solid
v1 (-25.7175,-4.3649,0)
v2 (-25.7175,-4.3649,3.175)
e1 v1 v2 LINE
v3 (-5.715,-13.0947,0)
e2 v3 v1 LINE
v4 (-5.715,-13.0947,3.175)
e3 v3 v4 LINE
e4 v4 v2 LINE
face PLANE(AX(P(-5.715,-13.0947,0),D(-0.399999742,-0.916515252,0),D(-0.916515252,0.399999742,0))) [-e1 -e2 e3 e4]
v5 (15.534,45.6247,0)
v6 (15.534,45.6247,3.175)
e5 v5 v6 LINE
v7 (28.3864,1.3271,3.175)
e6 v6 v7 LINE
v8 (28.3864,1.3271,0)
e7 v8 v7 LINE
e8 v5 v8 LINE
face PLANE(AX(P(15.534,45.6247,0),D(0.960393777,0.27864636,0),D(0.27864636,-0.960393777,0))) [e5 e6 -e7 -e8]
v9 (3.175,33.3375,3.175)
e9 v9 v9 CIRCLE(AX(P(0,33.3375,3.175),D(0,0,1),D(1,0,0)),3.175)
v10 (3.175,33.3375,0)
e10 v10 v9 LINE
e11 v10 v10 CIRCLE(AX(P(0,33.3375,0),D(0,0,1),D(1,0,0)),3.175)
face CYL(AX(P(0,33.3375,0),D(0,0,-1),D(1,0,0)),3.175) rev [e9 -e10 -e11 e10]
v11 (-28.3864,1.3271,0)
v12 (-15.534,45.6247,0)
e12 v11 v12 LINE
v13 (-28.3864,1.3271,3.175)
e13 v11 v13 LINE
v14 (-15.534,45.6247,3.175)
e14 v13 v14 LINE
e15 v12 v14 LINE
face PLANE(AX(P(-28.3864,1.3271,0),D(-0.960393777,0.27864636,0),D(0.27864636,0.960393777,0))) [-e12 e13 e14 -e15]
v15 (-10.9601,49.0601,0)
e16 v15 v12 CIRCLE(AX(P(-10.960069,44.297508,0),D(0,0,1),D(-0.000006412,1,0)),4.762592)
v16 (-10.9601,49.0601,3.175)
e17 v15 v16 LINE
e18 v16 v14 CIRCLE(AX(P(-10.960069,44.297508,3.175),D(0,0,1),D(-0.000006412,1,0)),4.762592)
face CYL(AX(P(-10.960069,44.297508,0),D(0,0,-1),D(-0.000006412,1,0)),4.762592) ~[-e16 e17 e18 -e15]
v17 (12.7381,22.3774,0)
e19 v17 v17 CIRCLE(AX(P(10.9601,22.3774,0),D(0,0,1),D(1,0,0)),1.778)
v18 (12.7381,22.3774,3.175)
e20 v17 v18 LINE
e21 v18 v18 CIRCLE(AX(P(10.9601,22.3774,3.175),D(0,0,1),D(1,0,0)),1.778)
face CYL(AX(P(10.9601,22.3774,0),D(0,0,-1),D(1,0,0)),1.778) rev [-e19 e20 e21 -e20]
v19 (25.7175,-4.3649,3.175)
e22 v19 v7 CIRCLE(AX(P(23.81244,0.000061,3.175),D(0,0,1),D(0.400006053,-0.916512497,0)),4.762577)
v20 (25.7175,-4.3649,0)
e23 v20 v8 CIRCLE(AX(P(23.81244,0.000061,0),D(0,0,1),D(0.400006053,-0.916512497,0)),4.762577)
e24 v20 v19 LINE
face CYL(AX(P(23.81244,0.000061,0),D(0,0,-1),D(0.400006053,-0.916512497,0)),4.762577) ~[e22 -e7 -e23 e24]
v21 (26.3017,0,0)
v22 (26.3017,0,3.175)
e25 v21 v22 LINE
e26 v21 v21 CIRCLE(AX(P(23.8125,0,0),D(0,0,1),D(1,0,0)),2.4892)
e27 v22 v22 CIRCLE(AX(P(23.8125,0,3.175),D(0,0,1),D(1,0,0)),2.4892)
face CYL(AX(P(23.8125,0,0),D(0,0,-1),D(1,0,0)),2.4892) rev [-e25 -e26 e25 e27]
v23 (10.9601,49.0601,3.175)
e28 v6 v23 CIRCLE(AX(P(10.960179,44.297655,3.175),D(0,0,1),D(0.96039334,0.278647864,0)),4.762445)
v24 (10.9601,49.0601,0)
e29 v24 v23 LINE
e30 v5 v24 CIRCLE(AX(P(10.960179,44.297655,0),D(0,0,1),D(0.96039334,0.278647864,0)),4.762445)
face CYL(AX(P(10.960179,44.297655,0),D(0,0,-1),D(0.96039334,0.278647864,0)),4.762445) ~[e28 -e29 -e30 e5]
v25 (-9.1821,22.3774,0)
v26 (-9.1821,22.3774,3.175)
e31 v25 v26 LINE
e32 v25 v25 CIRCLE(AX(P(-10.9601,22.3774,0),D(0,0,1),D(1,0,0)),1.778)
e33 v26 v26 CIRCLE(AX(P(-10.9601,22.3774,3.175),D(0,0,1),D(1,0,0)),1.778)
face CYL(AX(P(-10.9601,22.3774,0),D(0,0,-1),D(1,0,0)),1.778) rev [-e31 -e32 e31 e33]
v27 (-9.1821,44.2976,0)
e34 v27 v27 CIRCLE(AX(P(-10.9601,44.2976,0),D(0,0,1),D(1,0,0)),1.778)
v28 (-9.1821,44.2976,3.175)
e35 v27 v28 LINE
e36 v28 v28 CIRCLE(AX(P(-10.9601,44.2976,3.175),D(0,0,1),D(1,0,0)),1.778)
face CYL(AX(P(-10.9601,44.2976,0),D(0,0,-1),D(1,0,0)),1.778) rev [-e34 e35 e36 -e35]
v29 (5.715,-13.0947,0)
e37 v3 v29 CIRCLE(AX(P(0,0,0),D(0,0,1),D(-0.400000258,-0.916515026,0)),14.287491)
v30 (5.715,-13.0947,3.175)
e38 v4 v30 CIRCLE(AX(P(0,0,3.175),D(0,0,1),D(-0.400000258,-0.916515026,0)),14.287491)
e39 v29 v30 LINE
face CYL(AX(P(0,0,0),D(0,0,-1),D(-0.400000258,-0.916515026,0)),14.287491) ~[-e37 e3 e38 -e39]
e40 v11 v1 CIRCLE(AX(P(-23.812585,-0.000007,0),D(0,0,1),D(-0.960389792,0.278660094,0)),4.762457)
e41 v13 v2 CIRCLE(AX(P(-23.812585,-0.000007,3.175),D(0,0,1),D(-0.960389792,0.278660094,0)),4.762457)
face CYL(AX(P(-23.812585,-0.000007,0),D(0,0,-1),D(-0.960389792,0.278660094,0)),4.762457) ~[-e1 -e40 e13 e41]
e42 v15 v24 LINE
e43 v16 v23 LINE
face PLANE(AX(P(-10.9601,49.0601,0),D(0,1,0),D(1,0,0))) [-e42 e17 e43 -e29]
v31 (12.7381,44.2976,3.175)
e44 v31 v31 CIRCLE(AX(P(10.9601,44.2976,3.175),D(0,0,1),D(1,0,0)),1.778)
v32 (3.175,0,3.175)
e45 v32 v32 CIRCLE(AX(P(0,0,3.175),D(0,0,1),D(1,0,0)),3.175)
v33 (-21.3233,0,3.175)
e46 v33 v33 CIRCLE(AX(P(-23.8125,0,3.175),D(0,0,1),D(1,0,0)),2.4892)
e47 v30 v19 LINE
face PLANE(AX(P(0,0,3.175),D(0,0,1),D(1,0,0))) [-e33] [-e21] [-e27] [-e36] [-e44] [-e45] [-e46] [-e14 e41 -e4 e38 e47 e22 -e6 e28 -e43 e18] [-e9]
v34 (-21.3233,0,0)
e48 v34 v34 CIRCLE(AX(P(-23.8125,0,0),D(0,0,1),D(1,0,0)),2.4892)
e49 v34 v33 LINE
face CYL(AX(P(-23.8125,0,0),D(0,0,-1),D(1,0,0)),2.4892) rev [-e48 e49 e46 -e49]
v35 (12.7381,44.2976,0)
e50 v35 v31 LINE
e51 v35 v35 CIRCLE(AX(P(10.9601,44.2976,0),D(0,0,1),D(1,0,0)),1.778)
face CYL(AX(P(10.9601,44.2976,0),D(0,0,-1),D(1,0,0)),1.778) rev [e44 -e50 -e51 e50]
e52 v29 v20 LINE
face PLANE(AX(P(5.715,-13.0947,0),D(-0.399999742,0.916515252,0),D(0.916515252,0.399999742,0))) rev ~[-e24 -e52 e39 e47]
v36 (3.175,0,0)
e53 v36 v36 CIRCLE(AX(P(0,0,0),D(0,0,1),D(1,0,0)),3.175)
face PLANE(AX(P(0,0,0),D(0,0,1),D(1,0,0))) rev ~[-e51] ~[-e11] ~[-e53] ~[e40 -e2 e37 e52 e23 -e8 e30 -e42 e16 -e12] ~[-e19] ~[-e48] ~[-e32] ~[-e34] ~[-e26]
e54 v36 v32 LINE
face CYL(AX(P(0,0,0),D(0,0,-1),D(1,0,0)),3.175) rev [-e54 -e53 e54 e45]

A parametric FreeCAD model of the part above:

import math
import FreeCAD as App
import Part
import Sketcher
from FreeCAD import Vector
Q = App.Units.Quantity

doc = App.newDocument("Part")
body = doc.addObject("PartDesign::Body", "Body")

# Sketch on XY plane
sketch1 = body.newObject("Sketcher::SketchObject", "Sketch")
sketch1.AttachmentSupport = (doc.getObject("XY_Plane"), [""])
sketch1.MapMode = "FlatFace"
sketch1.addGeometry(Part.LineSegment(Vector(-25.7175, -4.3649, 0), Vector(-5.715, -13.0947, 0)), False)
sketch1.addGeometry(Part.ArcOfCircle(Part.Circle(Vector(0, 0, 0), Vector(0, 0, 1), 14.287491), math.radians(-113.578195), math.radians(-66.421805)), False)
sketch1.addGeometry(Part.LineSegment(Vector(5.715, -13.0947, 0), Vector(25.7175, -4.3649, 0)), False)
sketch1.addGeometry(Part.ArcOfCircle(Part.Circle(Vector(23.8125, 0, 0), Vector(0, 0, 1), 4.762497), math.radians(-66.421805), math.radians(16.179889)), False)
sketch1.addGeometry(Part.LineSegment(Vector(28.3864, 1.3271, 0), Vector(15.534, 45.6247, 0)), False)
sketch1.addGeometry(Part.ArcOfCircle(Part.Circle(Vector(10.9601, 44.2976, 0), Vector(0, 0, 1), 4.762537), math.radians(16.179889), math.radians(90)), False)
sketch1.addGeometry(Part.LineSegment(Vector(10.9601, 49.0601, 0), Vector(-10.9601, 49.0601, 0)), False)
sketch1.addGeometry(Part.ArcOfCircle(Part.Circle(Vector(-10.9601, 44.2976, 0), Vector(0, 0, 1), 4.7625), math.radians(90), math.radians(163.820111)), False)
sketch1.addGeometry(Part.LineSegment(Vector(-15.534, 45.6247, 0), Vector(-28.3864, 1.3271, 0)), False)
sketch1.addGeometry(Part.ArcOfCircle(Part.Circle(Vector(-23.8125, 0, 0), Vector(0, 0, 1), 4.762537), math.radians(163.820111), math.radians(246.421805)), False)
sketch1.addGeometry(Part.Circle(Vector(-23.8125, 0, 0), Vector(0, 0, 1), 2.4892), False)
sketch1.addGeometry(Part.Circle(Vector(0, 0, 0), Vector(0, 0, 1), 3.175), False)
sketch1.addGeometry(Part.Circle(Vector(23.8125, 0, 0), Vector(0, 0, 1), 2.4892), False)
sketch1.addGeometry(Part.Circle(Vector(-10.9601, 22.3774, 0), Vector(0, 0, 1), 1.778), False)
sketch1.addGeometry(Part.Circle(Vector(-10.9601, 44.2976, 0), Vector(0, 0, 1), 1.778), False)
sketch1.addGeometry(Part.Circle(Vector(10.9601, 22.3774, 0), Vector(0, 0, 1), 1.778), False)
sketch1.addGeometry(Part.Circle(Vector(0, 33.3375, 0), Vector(0, 0, 1), 3.175), False)
sketch1.addGeometry(Part.Circle(Vector(10.9601, 44.2976, 0), Vector(0, 0, 1), 1.778), False)
sketch1.addConstraint(Sketcher.Constraint("Tangent", 0, 2, 1, 1))
sketch1.addConstraint(Sketcher.Constraint("Tangent", 1, 2, 2, 1))
sketch1.addConstraint(Sketcher.Constraint("Tangent", 2, 2, 3, 1))
sketch1.addConstraint(Sketcher.Constraint("Tangent", 3, 2, 4, 1))
sketch1.addConstraint(Sketcher.Constraint("Tangent", 4, 2, 5, 1))
sketch1.addConstraint(Sketcher.Constraint("Tangent", 5, 2, 6, 1))
sketch1.addConstraint(Sketcher.Constraint("Tangent", 6, 2, 7, 1))
sketch1.addConstraint(Sketcher.Constraint("Tangent", 7, 2, 8, 1))
sketch1.addConstraint(Sketcher.Constraint("Tangent", 8, 2, 9, 1))
sketch1.addConstraint(Sketcher.Constraint("Tangent", 9, 2, 0, 1))
sketch1.addConstraint(Sketcher.Constraint("Horizontal", 6))
sketch1.addConstraint(Sketcher.Constraint("Coincident", 1, 3, -1, 1))
sketch1.addConstraint(Sketcher.Constraint("Coincident", 11, 3, -1, 1))
sketch1.addConstraint(Sketcher.Constraint("Coincident", 10, 3, 9, 3))
sketch1.addConstraint(Sketcher.Constraint("Coincident", 12, 3, 3, 3))
sketch1.addConstraint(Sketcher.Constraint("Coincident", 14, 3, 7, 3))
sketch1.addConstraint(Sketcher.Constraint("Coincident", 17, 3, 5, 3))
sketch1.addConstraint(Sketcher.Constraint("Equal", 3, 5))
sketch1.addConstraint(Sketcher.Constraint("Equal", 5, 7))
sketch1.addConstraint(Sketcher.Constraint("Equal", 7, 9))
sketch1.addConstraint(Sketcher.Constraint("Equal", 10, 12))
sketch1.addConstraint(Sketcher.Constraint("Equal", 13, 14))
sketch1.addConstraint(Sketcher.Constraint("Equal", 14, 15))
sketch1.addConstraint(Sketcher.Constraint("Equal", 11, 16))
sketch1.addConstraint(Sketcher.Constraint("Equal", 15, 17))
sketch1.addConstraint(Sketcher.Constraint("Symmetric", 3, 3, 9, 3, -1, 1))
sketch1.addConstraint(Sketcher.Constraint("Symmetric", 13, 3, 15, 3, -2))
sketch1.addConstraint(Sketcher.Constraint("Symmetric", 4, 2, 7, 2, -2))
sketch1.addConstraint(Sketcher.Constraint("PointOnObject", 16, 3, -2))
sketch1.addConstraint(Sketcher.Constraint("Vertical", 7, 3, 13, 3))
sketch1.addConstraint(Sketcher.Constraint("Diameter", 11, Q("0.25 in")))
sketch1.addConstraint(Sketcher.Constraint("Diameter", 13, Q("0.14 in")))
sketch1.addConstraint(Sketcher.Constraint("Diameter", 10, Q("0.196 in")))
sketch1.addConstraint(Sketcher.Constraint("Radius", 1, Q("0.5625 in")))
sketch1.addConstraint(Sketcher.Constraint("Radius", 3, Q("0.1875 in")))
sketch1.addConstraint(Sketcher.Constraint("DistanceX", 6, 2, 6, 1, Q("0.863 in")))
sketch1.addConstraint(Sketcher.Constraint("DistanceY", -1, 1, 16, 3, Q("1.3125 in")))
sketch1.addConstraint(Sketcher.Constraint("DistanceX", 9, 3, 3, 3, Q("1.875 in")))
sketch1.addConstraint(Sketcher.Constraint("DistanceY", 13, 3, 7, 3, Q("0.863 in")))
sketch1.addConstraint(Sketcher.Constraint("Angle", 4, Q("106.1794 deg")))
pad1 = body.newObject("PartDesign::Pad", "Pad")
pad1.Profile = sketch1
pad1.Length = Q("0.125 in")

doc.recompute()
